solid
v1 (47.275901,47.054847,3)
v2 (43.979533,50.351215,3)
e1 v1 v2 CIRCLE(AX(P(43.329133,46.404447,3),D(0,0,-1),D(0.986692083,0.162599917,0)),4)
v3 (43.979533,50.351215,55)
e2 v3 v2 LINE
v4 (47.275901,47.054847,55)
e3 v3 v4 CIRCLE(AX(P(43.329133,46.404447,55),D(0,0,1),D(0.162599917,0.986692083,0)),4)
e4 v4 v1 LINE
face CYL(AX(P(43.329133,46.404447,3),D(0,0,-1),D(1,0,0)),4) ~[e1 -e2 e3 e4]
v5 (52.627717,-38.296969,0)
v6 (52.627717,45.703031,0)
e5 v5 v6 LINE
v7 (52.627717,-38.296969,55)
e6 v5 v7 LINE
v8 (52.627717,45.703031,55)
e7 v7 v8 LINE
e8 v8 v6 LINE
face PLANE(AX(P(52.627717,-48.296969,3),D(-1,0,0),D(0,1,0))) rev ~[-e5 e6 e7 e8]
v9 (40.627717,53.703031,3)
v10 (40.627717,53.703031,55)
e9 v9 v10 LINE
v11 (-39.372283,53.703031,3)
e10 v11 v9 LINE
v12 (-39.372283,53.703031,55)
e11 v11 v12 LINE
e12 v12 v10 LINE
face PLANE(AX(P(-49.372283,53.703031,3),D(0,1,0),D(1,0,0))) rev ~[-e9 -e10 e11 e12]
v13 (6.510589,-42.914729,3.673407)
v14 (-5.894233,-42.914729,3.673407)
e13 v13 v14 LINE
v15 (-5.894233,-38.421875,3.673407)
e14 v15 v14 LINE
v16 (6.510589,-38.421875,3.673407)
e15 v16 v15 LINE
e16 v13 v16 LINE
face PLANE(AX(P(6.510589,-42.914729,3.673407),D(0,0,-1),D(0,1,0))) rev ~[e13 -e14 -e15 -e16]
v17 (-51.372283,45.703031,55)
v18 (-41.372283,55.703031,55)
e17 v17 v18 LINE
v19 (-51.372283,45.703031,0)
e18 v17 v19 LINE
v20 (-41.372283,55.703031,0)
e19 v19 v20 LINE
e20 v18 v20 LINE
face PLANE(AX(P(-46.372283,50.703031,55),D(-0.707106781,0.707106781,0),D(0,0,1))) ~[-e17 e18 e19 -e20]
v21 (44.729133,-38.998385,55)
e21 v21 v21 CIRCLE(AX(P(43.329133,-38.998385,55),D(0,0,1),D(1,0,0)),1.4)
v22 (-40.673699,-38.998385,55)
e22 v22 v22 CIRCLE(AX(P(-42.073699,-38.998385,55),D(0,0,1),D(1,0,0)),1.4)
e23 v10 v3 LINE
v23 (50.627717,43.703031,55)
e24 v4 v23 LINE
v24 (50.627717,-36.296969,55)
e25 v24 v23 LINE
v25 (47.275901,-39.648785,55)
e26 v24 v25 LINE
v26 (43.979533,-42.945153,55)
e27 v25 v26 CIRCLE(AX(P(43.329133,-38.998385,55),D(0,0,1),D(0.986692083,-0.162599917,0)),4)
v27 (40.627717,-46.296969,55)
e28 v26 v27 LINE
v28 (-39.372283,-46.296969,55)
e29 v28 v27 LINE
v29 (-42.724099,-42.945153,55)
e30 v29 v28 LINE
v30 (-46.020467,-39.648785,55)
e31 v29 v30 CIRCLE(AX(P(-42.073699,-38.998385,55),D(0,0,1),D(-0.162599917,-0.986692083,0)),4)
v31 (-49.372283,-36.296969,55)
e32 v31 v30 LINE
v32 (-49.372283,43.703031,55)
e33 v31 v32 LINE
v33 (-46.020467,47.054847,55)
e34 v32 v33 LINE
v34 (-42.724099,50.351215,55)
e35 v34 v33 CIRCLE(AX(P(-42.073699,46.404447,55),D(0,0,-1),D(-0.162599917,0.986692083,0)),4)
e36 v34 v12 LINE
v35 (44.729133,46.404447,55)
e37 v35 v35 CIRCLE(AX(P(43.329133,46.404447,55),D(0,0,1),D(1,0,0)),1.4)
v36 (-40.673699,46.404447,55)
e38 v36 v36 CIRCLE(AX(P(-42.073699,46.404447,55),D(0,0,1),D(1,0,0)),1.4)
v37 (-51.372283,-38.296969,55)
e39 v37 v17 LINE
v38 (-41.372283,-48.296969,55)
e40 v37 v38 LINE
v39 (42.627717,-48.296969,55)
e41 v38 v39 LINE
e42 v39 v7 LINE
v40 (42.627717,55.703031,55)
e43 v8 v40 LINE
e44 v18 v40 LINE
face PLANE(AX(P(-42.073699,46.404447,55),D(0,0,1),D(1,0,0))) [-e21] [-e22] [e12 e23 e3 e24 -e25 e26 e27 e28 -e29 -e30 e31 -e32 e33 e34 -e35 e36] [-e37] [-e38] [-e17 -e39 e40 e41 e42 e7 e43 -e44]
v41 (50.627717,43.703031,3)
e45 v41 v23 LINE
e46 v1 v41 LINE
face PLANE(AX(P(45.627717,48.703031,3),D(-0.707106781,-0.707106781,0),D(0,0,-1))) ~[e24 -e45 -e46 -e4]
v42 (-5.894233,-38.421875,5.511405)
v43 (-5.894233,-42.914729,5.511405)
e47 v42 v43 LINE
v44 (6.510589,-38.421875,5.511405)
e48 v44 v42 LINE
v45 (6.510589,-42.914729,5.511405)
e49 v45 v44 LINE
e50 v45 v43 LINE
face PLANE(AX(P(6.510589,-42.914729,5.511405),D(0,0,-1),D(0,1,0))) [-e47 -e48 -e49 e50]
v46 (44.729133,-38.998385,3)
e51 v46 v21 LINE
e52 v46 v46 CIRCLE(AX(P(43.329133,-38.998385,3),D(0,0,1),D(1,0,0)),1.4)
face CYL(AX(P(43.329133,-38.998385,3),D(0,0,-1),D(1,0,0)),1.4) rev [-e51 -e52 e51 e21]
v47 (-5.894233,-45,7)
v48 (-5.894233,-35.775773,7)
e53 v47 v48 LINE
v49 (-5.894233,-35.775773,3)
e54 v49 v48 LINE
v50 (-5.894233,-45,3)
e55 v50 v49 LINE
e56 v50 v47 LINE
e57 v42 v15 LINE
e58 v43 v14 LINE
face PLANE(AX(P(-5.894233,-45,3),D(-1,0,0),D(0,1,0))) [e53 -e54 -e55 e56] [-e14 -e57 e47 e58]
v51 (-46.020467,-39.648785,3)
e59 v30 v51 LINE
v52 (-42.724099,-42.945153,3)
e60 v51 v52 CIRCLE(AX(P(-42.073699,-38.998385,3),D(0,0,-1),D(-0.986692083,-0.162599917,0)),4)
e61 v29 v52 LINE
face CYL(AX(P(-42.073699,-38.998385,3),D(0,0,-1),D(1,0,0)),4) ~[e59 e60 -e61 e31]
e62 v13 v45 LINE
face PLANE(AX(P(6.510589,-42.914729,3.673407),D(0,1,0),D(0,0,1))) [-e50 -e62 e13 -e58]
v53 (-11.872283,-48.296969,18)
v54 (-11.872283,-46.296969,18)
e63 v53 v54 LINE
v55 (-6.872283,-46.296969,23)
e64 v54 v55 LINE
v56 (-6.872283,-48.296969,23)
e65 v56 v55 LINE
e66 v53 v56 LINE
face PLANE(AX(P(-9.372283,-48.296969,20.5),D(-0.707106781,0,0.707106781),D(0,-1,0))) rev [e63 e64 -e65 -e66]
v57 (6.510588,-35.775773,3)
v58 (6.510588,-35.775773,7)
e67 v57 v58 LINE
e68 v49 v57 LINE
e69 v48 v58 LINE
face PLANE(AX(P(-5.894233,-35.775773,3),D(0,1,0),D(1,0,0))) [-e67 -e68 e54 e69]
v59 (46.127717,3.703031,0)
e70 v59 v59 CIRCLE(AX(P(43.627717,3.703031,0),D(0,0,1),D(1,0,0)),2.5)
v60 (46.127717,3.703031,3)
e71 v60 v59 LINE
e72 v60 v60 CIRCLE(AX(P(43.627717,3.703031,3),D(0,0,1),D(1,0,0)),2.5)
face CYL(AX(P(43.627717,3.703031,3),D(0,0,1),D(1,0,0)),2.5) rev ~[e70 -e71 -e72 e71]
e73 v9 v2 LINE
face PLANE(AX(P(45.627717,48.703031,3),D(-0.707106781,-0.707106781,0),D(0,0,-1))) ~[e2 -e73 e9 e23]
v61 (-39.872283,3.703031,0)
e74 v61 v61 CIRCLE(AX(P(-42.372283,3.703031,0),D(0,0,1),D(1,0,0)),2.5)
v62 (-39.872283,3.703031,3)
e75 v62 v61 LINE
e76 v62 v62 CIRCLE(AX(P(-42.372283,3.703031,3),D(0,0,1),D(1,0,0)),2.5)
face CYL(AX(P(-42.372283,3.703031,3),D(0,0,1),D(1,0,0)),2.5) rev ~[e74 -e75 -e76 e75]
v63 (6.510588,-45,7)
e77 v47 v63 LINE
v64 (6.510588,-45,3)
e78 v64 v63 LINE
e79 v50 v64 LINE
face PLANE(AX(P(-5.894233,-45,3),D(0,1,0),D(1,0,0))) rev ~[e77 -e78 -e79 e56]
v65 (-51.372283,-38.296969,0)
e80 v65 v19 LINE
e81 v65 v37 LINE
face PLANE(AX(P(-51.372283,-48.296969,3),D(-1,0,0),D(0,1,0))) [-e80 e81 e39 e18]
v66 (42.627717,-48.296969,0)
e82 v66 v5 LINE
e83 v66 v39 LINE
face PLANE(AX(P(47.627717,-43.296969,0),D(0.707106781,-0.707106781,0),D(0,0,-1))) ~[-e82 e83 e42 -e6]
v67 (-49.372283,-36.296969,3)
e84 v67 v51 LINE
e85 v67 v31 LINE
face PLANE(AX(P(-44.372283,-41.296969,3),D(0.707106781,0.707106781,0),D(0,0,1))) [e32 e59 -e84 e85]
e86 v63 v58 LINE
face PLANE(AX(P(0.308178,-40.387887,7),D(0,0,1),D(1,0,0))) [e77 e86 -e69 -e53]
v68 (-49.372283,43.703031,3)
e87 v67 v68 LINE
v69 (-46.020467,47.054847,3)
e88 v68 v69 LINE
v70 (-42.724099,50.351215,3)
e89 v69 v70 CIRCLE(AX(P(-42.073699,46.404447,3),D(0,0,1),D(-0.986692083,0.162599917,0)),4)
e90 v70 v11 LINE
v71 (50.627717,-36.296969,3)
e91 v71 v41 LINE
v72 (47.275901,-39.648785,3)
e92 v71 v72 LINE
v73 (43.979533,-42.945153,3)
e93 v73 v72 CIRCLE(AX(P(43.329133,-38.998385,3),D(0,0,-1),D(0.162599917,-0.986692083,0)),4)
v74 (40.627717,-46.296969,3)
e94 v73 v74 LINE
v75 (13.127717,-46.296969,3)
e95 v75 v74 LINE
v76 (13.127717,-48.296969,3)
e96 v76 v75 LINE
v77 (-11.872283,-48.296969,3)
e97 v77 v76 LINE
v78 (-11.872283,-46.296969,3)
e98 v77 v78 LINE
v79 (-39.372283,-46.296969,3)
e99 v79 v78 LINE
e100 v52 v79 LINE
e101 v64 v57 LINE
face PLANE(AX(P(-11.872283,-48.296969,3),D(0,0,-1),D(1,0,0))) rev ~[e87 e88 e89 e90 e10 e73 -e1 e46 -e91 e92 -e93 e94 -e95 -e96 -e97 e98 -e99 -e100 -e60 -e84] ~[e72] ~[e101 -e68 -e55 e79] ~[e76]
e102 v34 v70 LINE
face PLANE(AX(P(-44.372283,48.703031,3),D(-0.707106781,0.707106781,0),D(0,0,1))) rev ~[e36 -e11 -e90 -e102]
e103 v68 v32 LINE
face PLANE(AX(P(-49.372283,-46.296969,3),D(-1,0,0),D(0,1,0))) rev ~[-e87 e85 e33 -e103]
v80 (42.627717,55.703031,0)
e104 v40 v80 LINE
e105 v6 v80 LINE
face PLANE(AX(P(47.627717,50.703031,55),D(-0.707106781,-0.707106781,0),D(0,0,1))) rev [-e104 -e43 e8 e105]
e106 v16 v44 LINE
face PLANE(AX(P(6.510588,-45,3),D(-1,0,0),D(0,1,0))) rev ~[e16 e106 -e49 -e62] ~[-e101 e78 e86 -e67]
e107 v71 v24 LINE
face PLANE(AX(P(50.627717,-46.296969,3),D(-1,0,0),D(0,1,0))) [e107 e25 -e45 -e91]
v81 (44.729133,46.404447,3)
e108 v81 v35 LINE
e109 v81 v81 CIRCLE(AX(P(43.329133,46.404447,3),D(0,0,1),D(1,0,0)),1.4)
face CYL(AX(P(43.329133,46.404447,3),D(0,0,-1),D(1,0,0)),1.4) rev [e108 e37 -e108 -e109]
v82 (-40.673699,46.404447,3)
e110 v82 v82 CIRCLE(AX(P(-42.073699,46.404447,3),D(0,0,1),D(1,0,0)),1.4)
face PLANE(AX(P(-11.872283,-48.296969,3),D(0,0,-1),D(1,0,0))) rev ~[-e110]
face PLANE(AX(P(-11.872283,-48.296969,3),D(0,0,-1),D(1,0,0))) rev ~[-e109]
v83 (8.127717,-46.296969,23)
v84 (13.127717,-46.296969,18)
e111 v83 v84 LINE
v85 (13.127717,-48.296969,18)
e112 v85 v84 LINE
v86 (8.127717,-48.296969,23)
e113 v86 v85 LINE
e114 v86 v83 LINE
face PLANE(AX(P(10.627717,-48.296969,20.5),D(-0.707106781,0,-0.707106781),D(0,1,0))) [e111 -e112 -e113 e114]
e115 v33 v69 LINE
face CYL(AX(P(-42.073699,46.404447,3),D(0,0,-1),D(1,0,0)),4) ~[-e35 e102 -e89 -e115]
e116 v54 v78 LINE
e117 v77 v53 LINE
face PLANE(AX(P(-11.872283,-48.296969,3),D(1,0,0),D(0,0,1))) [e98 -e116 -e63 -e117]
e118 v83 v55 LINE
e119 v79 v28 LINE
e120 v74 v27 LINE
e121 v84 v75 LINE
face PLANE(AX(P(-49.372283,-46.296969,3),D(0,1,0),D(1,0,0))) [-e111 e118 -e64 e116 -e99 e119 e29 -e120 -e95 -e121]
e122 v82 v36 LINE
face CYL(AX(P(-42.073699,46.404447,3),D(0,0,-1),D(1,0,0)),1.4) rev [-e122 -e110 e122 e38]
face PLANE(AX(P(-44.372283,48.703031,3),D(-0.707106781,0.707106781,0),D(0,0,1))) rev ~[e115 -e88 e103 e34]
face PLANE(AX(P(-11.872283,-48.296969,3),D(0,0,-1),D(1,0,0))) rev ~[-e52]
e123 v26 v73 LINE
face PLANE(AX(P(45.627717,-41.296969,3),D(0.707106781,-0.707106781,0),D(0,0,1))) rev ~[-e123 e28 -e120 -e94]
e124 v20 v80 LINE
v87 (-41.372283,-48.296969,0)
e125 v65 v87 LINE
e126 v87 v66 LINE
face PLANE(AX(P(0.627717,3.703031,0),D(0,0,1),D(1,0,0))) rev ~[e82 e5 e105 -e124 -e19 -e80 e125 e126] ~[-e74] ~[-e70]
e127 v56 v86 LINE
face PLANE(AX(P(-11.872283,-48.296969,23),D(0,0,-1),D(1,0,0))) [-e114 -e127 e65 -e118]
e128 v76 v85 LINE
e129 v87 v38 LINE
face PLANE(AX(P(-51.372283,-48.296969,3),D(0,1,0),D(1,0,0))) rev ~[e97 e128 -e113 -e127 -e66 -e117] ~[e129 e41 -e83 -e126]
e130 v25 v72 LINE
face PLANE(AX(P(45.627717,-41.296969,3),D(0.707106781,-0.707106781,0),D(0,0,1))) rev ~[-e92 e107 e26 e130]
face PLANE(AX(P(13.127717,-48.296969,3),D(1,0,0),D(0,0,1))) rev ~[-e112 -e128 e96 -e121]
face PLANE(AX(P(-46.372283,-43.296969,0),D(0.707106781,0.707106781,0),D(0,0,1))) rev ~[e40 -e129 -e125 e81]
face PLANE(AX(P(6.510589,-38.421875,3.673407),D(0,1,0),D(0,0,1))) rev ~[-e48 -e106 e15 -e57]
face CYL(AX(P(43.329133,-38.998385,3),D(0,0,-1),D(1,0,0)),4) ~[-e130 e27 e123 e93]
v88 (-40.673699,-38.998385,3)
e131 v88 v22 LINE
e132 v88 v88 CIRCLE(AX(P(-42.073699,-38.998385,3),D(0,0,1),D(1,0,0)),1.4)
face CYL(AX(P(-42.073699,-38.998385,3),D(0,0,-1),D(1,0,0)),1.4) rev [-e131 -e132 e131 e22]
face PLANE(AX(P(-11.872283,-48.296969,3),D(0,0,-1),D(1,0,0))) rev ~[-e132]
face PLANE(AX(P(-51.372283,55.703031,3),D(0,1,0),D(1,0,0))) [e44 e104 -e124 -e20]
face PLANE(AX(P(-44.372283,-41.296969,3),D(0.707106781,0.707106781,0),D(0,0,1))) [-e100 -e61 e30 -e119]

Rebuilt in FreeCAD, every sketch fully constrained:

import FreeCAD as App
import Part
import Sketcher
Q = App.Units.Quantity


def edges_at(feature, points):
    """Names of the edges that pass closest to the given points."""
    edges = feature.Shape.Edges
    near = lambda p: min(range(len(edges)), key=lambda i: edges[i].distToShape(Part.Vertex(*p))[0])
    return sorted({f"Edge{near(p) + 1}" for p in points})


def add_polygon(sketch, points):
    """Adds a closed chain of lines whose ends are joined by coincident constraints."""
    first, n = sketch.GeometryCount, len(points)
    for a, b in zip(points, points[1:] + points[:1]):
        sketch.addGeometry(Part.LineSegment(App.Vector(*a, 0), App.Vector(*b, 0)), False)
    for i in range(n):
        sketch.addConstraint(Sketcher.Constraint("Coincident", first + i, 2, first + (i + 1) % n, 1))

doc = App.newDocument("Part")
params = doc.addObject("Spreadsheet::Sheet", "Params")
for row, (alias, value) in enumerate([
    ("sketch1_width", "104 mm"),
    ("pad1_length", "3 mm"),
    ("sketch2_width", "104 mm"),
    ("sketch2_width2", "100 mm"),
    ("pad2_length", "52 mm"),
    ("chamfer_size", "10 mm"),
    ("sketch3_width", "25 mm"),
    ("sketch3_height", "20 mm"),
    ("pocket1_length", "5 mm"),
    ("chamfer2_size", "5 mm"),
    ("pad3_length", "4 mm"),
    ("sketch5_diameter", "8 mm"),
    ("sketch5_diameter2", "2.8 mm"),
    ("pad4_length", "52 mm"),
    ("sketch6_diameter", "5 mm"),
    ("pocket2_length", "5 mm"),
    ("pocket3_length", "25 mm"),
], start=1):
    params.set(f"A{row}", alias)
    params.set(f"B{row}", "=" + value)
    params.setAlias(f"B{row}", alias)

body = doc.addObject("PartDesign::Body", "Body")

# Sketch on XY plane
sketch1 = body.newObject("Sketcher::SketchObject", "Sketch")
sketch1.AttachmentSupport = (doc.getObject("XY_Plane"), [""])
sketch1.MapMode = "FlatFace"
add_polygon(sketch1, [(-51, 56), (-51, -48), (53, -48), (53, 56)])  # lines 0-3
sketch1.addConstraint([
    Sketcher.Constraint("Vertical", 0),
    Sketcher.Constraint("Horizontal", 1),
    Sketcher.Constraint("Vertical", 2),
    Sketcher.Constraint("Horizontal", 3),
    Sketcher.Constraint("Equal", 3, 0),
    Sketcher.Constraint("DistanceX", 1, 1, 1, 2, Q("104 mm")),
    Sketcher.Constraint("DistanceY", 0, 2, -1, 1, Q("48.296969 mm")),
    Sketcher.Constraint("DistanceX", 0, 2, -1, 1, Q("51.372283 mm")),
])
sketch1.setExpression("Constraints[9]", "Params.sketch1_width")
pad1 = body.newObject("PartDesign::Pad", "Pad")
pad1.Profile = sketch1
pad1.setExpression("Length", "Params.pad1_length")

# Sketch on XY plane
sketch2 = body.newObject("Sketcher::SketchObject", "Sketch001")
sketch2.AttachmentSupport = (doc.getObject("XY_Plane"), [""])
sketch2.MapMode = "FlatFace"
sketch2.AttachmentOffset = App.Placement(App.Vector(0, 0, 3), App.Rotation())
add_polygon(sketch2, [(-51, 56), (-51, -48), (53, -48), (53, 56)])  # lines 0-3
add_polygon(sketch2, [(51, -46), (-49, -46), (-49, 54), (51, 54)])  # lines 4-7
sketch2.addConstraint([
    Sketcher.Constraint("Vertical", 0),
    Sketcher.Constraint("Horizontal", 1),
    Sketcher.Constraint("Vertical", 2),
    Sketcher.Constraint("Horizontal", 3),
    Sketcher.Constraint("Horizontal", 4),
    Sketcher.Constraint("Vertical", 5),
    Sketcher.Constraint("Horizontal", 6),
    Sketcher.Constraint("Vertical", 7),
    Sketcher.Constraint("Equal", 3, 0),
    Sketcher.Constraint("Equal", 6, 5),
    Sketcher.Constraint("DistanceX", 1, 1, 1, 2, Q("104 mm")),
    Sketcher.Constraint("DistanceX", 4, 2, 4, 1, Q("100 mm")),
    Sketcher.Constraint("DistanceX", 0, 2, 4, 2, Q("2 mm")),
    Sketcher.Constraint("DistanceY", 0, 2, 4, 2, Q("2 mm")),
    Sketcher.Constraint("DistanceY", 0, 2, -1, 1, Q("48.296969 mm")),
    Sketcher.Constraint("DistanceX", 0, 2, -1, 1, Q("51.372283 mm")),
])
sketch2.setExpression("Constraints[18]", "Params.sketch2_width")
sketch2.setExpression("Constraints[19]", "Params.sketch2_width2")
pad2 = body.newObject("PartDesign::Pad", "Pad001")
pad2.Profile = sketch2
pad2.setExpression("Length", "Params.pad2_length")
doc.recompute()

chamfer = body.newObject("PartDesign::Chamfer", "Chamfer")
chamfer.Base = (pad2, edges_at(pad2, [
    (-51.372, 55.703, 27.5),
    (52.628, 55.703, 27.5),
    (-51.372, -48.297, 27.5),
    (52.628, -48.297, 27.5),
    (-49.372, 53.703, 29),
    (50.628, 53.703, 29),
    (-49.372, -46.297, 29),
    (50.628, -46.297, 29),
]))
chamfer.setExpression("Size", "Params.chamfer_size")

# Sketch on XZ plane
sketch3 = body.newObject("Sketcher::SketchObject", "Sketch002")
sketch3.AttachmentSupport = (doc.getObject("XZ_Plane"), [""])
sketch3.MapMode = "FlatFace"
sketch3.AttachmentOffset = App.Placement(App.Vector(0, 0, 48.296969), App.Rotation())
add_polygon(sketch3, [(-12, 23), (-12, 3), (13, 3), (13, 23)])  # lines 0-3
sketch3.addConstraint([
    Sketcher.Constraint("Vertical", 0),
    Sketcher.Constraint("Horizontal", 1),
    Sketcher.Constraint("Vertical", 2),
    Sketcher.Constraint("Horizontal", 3),
    Sketcher.Constraint("DistanceX", 1, 1, 1, 2, Q("25 mm")),
    Sketcher.Constraint("DistanceY", 0, 2, 0, 1, Q("20 mm")),
    Sketcher.Constraint("DistanceY", -1, 1, 0, 2, Q("3 mm")),
    Sketcher.Constraint("DistanceX", 0, 2, -1, 1, Q("11.872283 mm")),
])
sketch3.setExpression("Constraints[8]", "Params.sketch3_width")
sketch3.setExpression("Constraints[9]", "Params.sketch3_height")
pocket1 = body.newObject("PartDesign::Pocket", "Pocket")
pocket1.Profile = sketch3
pocket1.setExpression("Length", "Params.pocket1_length")
doc.recompute()

chamfer2 = body.newObject("PartDesign::Chamfer", "Chamfer001")
chamfer2.Base = (pocket1, edges_at(pocket1, [(-11.872, -47.297, 23), (13.128, -47.297, 23)]))
chamfer2.setExpression("Size", "Params.chamfer2_size")

# Sketch on XY plane
sketch4 = body.newObject("Sketcher::SketchObject", "Sketch003")
sketch4.AttachmentSupport = (doc.getObject("XY_Plane"), [""])
sketch4.MapMode = "FlatFace"
sketch4.AttachmentOffset = App.Placement(App.Vector(0, 0, 3), App.Rotation())
add_polygon(sketch4, [(-6, -36), (-6, -45), (7, -45), (7, -36)])  # lines 0-3
sketch4.addConstraint([
    Sketcher.Constraint("Vertical", 0),
    Sketcher.Constraint("Horizontal", 1),
    Sketcher.Constraint("Vertical", 2),
    Sketcher.Constraint("Horizontal", 3),
    Sketcher.Constraint("DistanceY", 0, 2, -1, 1, Q("45 mm")),
    Sketcher.Constraint("DistanceX", 1, 1, 1, 2, Q("12.404821 mm")),
    Sketcher.Constraint("DistanceY", 0, 2, 0, 1, Q("9.224227 mm")),
    Sketcher.Constraint("DistanceX", -1, 1, 1, 2, Q("6.510588 mm")),
])
pad3 = body.newObject("PartDesign::Pad", "Pad002")
pad3.Profile = sketch4
pad3.setExpression("Length", "Params.pad3_length")

# Sketch on XY plane
sketch5 = body.newObject("Sketcher::SketchObject", "Sketch004")
sketch5.AttachmentSupport = (doc.getObject("XY_Plane"), [""])
sketch5.MapMode = "FlatFace"
sketch5.AttachmentOffset = App.Placement(App.Vector(0, 0, 3), App.Rotation())
sketch5.addGeometry([
    Part.Circle(App.Vector(-42.1, 46.4, 0), App.Vector(0, 0, 1), 4),  # 0
    Part.Circle(App.Vector(-42.1, 46.4, 0), App.Vector(0, 0, 1), 1.4),  # 1
    Part.Circle(App.Vector(43.3, 46.4, 0), App.Vector(0, 0, 1), 4),  # 2
    Part.Circle(App.Vector(43.3, 46.4, 0), App.Vector(0, 0, 1), 1.4),  # 3
    Part.Circle(App.Vector(-42.1, -39, 0), App.Vector(0, 0, 1), 4),  # 4
    Part.Circle(App.Vector(-42.1, -39, 0), App.Vector(0, 0, 1), 1.4),  # 5
    Part.Circle(App.Vector(43.3, -39, 0), App.Vector(0, 0, 1), 4),  # 6
    Part.Circle(App.Vector(43.3, -39, 0), App.Vector(0, 0, 1), 1.4),  # 7
], False)
sketch5.addConstraint([
    Sketcher.Constraint("Coincident", 1, 3, 0, 3),
    Sketcher.Constraint("Coincident", 3, 3, 2, 3),
    Sketcher.Constraint("Coincident", 5, 3, 4, 3),
    Sketcher.Constraint("Coincident", 7, 3, 6, 3),
    Sketcher.Constraint("Equal", 0, 2),
    Sketcher.Constraint("Equal", 1, 3),
    Sketcher.Constraint("Equal", 2, 4),
    Sketcher.Constraint("Equal", 3, 5),
    Sketcher.Constraint("Equal", 4, 6),
    Sketcher.Constraint("Equal", 5, 7),
    Sketcher.Constraint("Horizontal", 1, 3, 2, 3),
    Sketcher.Constraint("Horizontal", 5, 3, 6, 3),
    Sketcher.Constraint("Vertical", 1, 3, 4, 3),
    Sketcher.Constraint("Vertical", 3, 3, 6, 3),
    Sketcher.Constraint("Diameter", 0, Q("8 mm")),
    Sketcher.Constraint("Diameter", 1, Q("2.8 mm")),
    Sketcher.Constraint("DistanceX", 0, 3, -1, 1, Q("42.073699 mm")),
    Sketcher.Constraint("DistanceX", 0, 3, 2, 3, Q("85.402832 mm")),
    Sketcher.Constraint("DistanceY", 4, 3, 0, 3, Q("85.402832 mm")),
    Sketcher.Constraint("DistanceY", -1, 1, 0, 3, Q("46.404447 mm")),
])
sketch5.setExpression("Constraints[14]", "Params.sketch5_diameter")
sketch5.setExpression("Constraints[15]", "Params.sketch5_diameter2")
pad4 = body.newObject("PartDesign::Pad", "Pad003")
pad4.Profile = sketch5
pad4.setExpression("Length", "Params.pad4_length")

# Sketch on XY plane
sketch6 = body.newObject("Sketcher::SketchObject", "Sketch005")
sketch6.AttachmentSupport = (doc.getObject("XY_Plane"), [""])
sketch6.MapMode = "FlatFace"
sketch6.AttachmentOffset = App.Placement(App.Vector(0, 0, 3), App.Rotation())
sketch6.addGeometry([
    Part.Circle(App.Vector(-42.4, 3.7, 0), App.Vector(0, 0, 1), 2.5),
    Part.Circle(App.Vector(43.6, 3.7, 0), App.Vector(0, 0, 1), 2.5),
], False)
sketch6.addConstraint([
    Sketcher.Constraint("Equal", 0, 1),
    Sketcher.Constraint("Horizontal", 0, 3, 1, 3),
    Sketcher.Constraint("Diameter", 0, Q("5 mm")),
    Sketcher.Constraint("DistanceX", 0, 3, 1, 3, Q("86 mm")),
    Sketcher.Constraint("DistanceY", -1, 1, 0, 3, Q("3.703031 mm")),
    Sketcher.Constraint("DistanceX", 0, 3, -1, 1, Q("42.372283 mm")),
])
sketch6.setExpression("Constraints[2]", "Params.sketch6_diameter")
pocket2 = body.newObject("PartDesign::Pocket", "Pocket001")
pocket2.Profile = sketch6
pocket2.setExpression("Length", "Params.pocket2_length")

# Sketch on YZ plane
sketch7 = body.newObject("Sketcher::SketchObject", "Sketch006")
sketch7.AttachmentSupport = (doc.getObject("YZ_Plane"), [""])
sketch7.MapMode = "FlatFace"
sketch7.AttachmentOffset = App.Placement(App.Vector(0, 0, 6.510589), App.Rotation())
add_polygon(sketch7, [(-42.9, 5.5), (-42.9, 3.7), (-38.4, 3.7), (-38.4, 5.5)])  # lines 0-3
sketch7.addConstraint([
    Sketcher.Constraint("Vertical", 0),
    Sketcher.Constraint("Horizontal", 1),
    Sketcher.Constraint("Vertical", 2),
    Sketcher.Constraint("Horizontal", 3),
    Sketcher.Constraint("DistanceX", 1, 1, 1, 2, Q("4.492853 mm")),
    Sketcher.Constraint("DistanceY", 0, 2, 0, 1, Q("1.837998 mm")),
    Sketcher.Constraint("DistanceX", 0, 2, -1, 1, Q("42.914729 mm")),
    Sketcher.Constraint("DistanceY", -1, 1, 0, 2, Q("3.673407 mm")),
])
pocket3 = body.newObject("PartDesign::Pocket", "Pocket002")
pocket3.Profile = sketch7
pocket3.setExpression("Length", "Params.pocket3_length")

doc.recompute()
